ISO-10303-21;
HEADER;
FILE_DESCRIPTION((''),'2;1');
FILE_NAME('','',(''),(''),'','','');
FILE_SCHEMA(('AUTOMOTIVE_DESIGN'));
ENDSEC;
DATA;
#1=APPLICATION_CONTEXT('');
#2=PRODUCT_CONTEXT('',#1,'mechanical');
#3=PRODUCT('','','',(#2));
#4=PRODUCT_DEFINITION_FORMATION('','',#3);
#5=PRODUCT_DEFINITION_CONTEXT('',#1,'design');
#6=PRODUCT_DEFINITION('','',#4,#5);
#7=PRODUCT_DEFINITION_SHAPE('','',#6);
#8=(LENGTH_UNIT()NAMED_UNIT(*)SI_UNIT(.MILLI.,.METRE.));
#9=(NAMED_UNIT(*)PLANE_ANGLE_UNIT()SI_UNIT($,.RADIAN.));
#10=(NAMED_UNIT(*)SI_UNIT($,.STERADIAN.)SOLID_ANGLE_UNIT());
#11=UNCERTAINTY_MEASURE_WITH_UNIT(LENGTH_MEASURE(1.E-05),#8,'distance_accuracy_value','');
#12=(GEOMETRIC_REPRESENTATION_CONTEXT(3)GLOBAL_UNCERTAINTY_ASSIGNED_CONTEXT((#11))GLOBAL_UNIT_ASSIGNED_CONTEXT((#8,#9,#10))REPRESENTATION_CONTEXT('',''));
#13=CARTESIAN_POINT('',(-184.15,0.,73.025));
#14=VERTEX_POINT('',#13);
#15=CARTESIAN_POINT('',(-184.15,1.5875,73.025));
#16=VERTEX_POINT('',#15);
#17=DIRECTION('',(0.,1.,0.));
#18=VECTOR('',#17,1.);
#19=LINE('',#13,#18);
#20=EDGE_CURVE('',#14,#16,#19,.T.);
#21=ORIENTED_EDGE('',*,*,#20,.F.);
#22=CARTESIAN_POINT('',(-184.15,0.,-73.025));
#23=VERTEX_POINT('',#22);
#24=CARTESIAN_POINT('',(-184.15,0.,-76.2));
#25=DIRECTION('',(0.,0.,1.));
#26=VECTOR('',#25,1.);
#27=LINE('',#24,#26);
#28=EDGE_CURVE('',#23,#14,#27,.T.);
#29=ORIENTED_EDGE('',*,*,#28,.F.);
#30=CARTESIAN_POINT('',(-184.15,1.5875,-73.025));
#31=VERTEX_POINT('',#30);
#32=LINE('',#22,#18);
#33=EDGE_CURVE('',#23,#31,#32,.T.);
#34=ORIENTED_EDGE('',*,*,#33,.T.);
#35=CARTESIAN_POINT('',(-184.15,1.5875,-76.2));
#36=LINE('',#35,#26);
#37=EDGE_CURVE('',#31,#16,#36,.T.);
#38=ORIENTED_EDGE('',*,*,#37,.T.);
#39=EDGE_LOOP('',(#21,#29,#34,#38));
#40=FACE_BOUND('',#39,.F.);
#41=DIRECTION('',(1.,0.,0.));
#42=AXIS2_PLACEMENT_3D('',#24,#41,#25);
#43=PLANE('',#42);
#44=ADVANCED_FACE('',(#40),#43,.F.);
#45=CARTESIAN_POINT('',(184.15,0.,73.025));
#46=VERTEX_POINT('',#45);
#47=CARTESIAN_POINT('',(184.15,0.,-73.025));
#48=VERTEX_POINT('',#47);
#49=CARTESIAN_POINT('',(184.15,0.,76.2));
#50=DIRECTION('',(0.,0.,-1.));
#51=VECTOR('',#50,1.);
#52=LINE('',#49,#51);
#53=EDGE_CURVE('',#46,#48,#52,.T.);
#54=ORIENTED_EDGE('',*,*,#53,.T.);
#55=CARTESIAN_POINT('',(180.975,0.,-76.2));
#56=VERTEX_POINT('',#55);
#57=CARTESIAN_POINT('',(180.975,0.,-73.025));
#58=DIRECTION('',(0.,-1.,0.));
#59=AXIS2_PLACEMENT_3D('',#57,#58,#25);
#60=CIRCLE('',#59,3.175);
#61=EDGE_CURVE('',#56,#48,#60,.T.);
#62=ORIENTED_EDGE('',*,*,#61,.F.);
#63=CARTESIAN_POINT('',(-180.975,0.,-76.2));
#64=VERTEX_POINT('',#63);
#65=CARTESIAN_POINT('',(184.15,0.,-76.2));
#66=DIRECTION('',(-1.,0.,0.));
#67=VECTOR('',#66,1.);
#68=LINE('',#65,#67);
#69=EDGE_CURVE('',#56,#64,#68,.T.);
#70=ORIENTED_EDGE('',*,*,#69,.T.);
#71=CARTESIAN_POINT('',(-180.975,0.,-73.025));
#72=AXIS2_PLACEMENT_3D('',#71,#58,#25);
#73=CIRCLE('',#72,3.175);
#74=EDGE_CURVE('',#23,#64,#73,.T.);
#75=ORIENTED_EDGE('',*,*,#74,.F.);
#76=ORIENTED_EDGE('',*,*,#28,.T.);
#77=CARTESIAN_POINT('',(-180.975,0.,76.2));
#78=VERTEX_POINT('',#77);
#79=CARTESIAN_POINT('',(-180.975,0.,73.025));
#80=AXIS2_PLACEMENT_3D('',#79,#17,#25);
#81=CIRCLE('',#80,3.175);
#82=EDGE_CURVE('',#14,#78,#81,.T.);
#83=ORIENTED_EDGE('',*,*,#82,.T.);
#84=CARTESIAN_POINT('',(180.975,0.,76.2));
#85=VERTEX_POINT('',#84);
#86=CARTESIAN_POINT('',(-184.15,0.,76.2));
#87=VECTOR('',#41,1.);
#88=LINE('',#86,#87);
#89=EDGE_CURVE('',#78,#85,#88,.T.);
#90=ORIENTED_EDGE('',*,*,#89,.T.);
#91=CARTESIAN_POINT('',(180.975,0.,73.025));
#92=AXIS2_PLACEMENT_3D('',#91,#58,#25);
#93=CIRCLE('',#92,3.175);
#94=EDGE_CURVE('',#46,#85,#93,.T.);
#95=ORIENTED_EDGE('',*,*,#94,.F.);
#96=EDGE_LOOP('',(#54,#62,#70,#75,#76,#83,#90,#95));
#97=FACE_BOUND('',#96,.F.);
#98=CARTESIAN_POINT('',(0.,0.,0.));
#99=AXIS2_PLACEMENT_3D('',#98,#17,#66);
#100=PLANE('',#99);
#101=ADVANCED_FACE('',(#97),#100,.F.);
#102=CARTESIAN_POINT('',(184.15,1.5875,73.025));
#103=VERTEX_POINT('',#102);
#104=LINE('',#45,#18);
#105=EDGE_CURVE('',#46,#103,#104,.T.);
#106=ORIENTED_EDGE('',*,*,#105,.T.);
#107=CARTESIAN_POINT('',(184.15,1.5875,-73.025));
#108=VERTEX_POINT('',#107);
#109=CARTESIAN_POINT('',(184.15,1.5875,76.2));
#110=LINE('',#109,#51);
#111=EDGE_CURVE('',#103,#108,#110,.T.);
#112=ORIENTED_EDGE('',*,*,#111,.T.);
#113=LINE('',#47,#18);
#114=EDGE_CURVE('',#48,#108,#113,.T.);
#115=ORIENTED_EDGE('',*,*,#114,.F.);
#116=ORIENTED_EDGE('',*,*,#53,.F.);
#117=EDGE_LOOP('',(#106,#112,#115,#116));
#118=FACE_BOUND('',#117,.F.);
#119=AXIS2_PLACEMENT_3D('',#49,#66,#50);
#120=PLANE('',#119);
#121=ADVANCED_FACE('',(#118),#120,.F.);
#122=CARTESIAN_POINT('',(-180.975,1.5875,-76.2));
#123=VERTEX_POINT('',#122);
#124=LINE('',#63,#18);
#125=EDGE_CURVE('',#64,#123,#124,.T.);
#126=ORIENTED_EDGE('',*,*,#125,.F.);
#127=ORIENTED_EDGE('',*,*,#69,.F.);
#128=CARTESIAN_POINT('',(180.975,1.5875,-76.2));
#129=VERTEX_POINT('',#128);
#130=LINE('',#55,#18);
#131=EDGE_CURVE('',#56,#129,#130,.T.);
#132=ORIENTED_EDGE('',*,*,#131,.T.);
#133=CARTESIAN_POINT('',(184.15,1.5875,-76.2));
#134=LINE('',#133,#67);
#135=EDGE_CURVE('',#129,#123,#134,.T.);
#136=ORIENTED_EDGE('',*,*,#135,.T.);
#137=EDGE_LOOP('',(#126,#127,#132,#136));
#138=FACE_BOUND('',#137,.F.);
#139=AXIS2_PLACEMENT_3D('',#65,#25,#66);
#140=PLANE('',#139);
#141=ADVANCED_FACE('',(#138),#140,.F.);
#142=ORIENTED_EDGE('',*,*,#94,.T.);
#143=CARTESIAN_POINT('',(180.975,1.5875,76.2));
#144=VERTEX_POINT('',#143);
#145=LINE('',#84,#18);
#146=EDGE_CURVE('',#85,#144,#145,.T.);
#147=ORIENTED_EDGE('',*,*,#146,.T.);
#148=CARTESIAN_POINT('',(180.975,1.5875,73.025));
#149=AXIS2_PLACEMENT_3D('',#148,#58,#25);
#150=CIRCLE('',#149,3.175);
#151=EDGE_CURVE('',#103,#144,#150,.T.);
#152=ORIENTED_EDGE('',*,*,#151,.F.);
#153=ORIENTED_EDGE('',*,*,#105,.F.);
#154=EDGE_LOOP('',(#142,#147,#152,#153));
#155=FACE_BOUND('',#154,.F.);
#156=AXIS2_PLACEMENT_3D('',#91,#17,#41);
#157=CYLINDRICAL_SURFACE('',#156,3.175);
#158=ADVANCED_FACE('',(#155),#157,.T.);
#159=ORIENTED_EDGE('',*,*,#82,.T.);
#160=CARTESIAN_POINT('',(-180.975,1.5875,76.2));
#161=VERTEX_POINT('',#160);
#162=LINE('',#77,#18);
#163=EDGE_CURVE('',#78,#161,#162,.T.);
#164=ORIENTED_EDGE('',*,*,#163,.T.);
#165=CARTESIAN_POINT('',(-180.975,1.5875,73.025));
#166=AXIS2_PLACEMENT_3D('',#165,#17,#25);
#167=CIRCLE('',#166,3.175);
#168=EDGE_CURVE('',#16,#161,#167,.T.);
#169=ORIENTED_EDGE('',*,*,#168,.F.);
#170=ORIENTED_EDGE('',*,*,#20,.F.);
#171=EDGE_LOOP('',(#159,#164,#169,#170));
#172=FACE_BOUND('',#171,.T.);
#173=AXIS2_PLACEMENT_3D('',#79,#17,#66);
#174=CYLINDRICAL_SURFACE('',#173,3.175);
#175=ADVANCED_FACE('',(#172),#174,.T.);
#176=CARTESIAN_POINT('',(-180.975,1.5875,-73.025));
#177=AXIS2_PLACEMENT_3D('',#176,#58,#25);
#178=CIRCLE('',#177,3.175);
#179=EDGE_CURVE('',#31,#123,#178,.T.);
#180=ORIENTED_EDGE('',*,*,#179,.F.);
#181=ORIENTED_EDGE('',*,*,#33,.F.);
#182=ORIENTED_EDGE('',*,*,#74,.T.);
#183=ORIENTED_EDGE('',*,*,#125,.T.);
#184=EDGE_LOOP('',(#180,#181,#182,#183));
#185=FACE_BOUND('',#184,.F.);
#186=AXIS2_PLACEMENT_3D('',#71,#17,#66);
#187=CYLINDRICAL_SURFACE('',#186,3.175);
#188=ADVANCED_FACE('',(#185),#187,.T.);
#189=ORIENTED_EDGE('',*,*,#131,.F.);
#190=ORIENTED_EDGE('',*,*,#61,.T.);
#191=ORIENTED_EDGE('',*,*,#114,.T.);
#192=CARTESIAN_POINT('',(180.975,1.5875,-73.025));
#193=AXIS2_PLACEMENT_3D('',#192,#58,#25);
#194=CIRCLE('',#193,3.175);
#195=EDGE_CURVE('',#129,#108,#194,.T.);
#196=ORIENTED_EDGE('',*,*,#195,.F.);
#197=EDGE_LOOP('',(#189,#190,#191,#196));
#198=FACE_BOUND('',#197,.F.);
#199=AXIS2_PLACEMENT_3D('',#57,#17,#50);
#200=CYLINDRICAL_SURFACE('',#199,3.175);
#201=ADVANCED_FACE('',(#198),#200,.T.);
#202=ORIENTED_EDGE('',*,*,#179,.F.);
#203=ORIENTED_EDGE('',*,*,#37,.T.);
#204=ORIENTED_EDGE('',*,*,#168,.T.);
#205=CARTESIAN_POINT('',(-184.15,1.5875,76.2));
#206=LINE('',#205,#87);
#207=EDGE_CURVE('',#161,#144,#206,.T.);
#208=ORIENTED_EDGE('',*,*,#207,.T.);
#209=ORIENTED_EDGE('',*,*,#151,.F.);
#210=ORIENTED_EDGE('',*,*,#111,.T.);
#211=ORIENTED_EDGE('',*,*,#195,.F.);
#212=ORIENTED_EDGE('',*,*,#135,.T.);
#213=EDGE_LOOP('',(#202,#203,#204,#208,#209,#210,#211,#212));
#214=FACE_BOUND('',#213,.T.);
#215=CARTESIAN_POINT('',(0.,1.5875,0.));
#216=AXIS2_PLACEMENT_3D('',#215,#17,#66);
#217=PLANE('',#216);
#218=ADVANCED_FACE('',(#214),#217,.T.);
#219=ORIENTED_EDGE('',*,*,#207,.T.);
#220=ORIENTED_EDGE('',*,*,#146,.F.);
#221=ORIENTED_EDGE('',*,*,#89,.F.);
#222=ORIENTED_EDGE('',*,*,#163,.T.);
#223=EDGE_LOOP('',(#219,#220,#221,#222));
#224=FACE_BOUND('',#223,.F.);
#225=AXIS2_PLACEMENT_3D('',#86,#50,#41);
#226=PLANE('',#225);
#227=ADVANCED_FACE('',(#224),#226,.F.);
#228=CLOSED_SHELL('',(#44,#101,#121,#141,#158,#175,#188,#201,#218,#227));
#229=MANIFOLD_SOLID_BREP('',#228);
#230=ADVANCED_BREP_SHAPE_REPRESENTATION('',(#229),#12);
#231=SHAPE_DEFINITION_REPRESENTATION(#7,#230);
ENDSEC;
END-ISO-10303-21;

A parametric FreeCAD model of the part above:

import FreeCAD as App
import Part
import Sketcher
from FreeCAD import Vector
Q = App.Units.Quantity


def edges_at(feature, points):
    """Names of the edges that pass closest to the given points."""
    edges = feature.Shape.Edges
    near = lambda p: min(range(len(edges)), key=lambda i: edges[i].distToShape(Part.Vertex(*p))[0])
    return sorted({f"Edge{near(p) + 1}" for p in points})


def add_polygon(sketch, points):
    """Adds a closed chain of lines whose ends are joined by coincident constraints."""
    first, n = sketch.GeometryCount, len(points)
    for a, b in zip(points, points[1:] + points[:1]):
        sketch.addGeometry(Part.LineSegment(App.Vector(*a, 0), App.Vector(*b, 0)), False)
    for i in range(n):
        sketch.addConstraint(Sketcher.Constraint("Coincident", first + i, 2, first + (i + 1) % n, 1))

doc = App.newDocument("Part")
body = doc.addObject("PartDesign::Body", "Body")

# Sketch on XZ plane
sketch1 = doc.addObject("Sketcher::SketchObject", "Sketch")
body.addObject(sketch1)
sketch1.AttachmentSupport = (doc.XZ_Plane, [""])
sketch1.MapMode = "FlatFace"
add_polygon(sketch1, [(-184, -76), (-184, 76), (184, 76), (184, -76)])  # lines 0-3
sketch1.addConstraint(Sketcher.Constraint("Vertical", 0))
sketch1.addConstraint(Sketcher.Constraint("Horizontal", 1))
sketch1.addConstraint(Sketcher.Constraint("Vertical", 2))
sketch1.addConstraint(Sketcher.Constraint("Horizontal", 3))
sketch1.addConstraint(Sketcher.Constraint("Symmetric", 0, 2, 2, 2, -1, 1))
sketch1.addConstraint(Sketcher.Constraint("DistanceY", 0, 1, 0, 2, Q("6 in")))
sketch1.addConstraint(Sketcher.Constraint("DistanceX", 1, 1, 1, 2, Q("14.5 in")))
pad1 = doc.addObject("PartDesign::Pad", "Pad")
body.addObject(pad1)
pad1.Profile = sketch1
pad1.Length = Q("0.0625 in")
pad1.Reversed = True
doc.recompute()

fillet = doc.addObject("PartDesign::Fillet", "Fillet")
body.addObject(fillet)
fillet.Base = (pad1, edges_at(pad1, [
    (184.15, 0.794, 76.2),
    (184.15, 0.794, -76.2),
    (-184.15, 0.794, 76.2),
    (-184.15, 0.794, -76.2),
]))
fillet.Radius = Q("0.125 in")

doc.recompute()
